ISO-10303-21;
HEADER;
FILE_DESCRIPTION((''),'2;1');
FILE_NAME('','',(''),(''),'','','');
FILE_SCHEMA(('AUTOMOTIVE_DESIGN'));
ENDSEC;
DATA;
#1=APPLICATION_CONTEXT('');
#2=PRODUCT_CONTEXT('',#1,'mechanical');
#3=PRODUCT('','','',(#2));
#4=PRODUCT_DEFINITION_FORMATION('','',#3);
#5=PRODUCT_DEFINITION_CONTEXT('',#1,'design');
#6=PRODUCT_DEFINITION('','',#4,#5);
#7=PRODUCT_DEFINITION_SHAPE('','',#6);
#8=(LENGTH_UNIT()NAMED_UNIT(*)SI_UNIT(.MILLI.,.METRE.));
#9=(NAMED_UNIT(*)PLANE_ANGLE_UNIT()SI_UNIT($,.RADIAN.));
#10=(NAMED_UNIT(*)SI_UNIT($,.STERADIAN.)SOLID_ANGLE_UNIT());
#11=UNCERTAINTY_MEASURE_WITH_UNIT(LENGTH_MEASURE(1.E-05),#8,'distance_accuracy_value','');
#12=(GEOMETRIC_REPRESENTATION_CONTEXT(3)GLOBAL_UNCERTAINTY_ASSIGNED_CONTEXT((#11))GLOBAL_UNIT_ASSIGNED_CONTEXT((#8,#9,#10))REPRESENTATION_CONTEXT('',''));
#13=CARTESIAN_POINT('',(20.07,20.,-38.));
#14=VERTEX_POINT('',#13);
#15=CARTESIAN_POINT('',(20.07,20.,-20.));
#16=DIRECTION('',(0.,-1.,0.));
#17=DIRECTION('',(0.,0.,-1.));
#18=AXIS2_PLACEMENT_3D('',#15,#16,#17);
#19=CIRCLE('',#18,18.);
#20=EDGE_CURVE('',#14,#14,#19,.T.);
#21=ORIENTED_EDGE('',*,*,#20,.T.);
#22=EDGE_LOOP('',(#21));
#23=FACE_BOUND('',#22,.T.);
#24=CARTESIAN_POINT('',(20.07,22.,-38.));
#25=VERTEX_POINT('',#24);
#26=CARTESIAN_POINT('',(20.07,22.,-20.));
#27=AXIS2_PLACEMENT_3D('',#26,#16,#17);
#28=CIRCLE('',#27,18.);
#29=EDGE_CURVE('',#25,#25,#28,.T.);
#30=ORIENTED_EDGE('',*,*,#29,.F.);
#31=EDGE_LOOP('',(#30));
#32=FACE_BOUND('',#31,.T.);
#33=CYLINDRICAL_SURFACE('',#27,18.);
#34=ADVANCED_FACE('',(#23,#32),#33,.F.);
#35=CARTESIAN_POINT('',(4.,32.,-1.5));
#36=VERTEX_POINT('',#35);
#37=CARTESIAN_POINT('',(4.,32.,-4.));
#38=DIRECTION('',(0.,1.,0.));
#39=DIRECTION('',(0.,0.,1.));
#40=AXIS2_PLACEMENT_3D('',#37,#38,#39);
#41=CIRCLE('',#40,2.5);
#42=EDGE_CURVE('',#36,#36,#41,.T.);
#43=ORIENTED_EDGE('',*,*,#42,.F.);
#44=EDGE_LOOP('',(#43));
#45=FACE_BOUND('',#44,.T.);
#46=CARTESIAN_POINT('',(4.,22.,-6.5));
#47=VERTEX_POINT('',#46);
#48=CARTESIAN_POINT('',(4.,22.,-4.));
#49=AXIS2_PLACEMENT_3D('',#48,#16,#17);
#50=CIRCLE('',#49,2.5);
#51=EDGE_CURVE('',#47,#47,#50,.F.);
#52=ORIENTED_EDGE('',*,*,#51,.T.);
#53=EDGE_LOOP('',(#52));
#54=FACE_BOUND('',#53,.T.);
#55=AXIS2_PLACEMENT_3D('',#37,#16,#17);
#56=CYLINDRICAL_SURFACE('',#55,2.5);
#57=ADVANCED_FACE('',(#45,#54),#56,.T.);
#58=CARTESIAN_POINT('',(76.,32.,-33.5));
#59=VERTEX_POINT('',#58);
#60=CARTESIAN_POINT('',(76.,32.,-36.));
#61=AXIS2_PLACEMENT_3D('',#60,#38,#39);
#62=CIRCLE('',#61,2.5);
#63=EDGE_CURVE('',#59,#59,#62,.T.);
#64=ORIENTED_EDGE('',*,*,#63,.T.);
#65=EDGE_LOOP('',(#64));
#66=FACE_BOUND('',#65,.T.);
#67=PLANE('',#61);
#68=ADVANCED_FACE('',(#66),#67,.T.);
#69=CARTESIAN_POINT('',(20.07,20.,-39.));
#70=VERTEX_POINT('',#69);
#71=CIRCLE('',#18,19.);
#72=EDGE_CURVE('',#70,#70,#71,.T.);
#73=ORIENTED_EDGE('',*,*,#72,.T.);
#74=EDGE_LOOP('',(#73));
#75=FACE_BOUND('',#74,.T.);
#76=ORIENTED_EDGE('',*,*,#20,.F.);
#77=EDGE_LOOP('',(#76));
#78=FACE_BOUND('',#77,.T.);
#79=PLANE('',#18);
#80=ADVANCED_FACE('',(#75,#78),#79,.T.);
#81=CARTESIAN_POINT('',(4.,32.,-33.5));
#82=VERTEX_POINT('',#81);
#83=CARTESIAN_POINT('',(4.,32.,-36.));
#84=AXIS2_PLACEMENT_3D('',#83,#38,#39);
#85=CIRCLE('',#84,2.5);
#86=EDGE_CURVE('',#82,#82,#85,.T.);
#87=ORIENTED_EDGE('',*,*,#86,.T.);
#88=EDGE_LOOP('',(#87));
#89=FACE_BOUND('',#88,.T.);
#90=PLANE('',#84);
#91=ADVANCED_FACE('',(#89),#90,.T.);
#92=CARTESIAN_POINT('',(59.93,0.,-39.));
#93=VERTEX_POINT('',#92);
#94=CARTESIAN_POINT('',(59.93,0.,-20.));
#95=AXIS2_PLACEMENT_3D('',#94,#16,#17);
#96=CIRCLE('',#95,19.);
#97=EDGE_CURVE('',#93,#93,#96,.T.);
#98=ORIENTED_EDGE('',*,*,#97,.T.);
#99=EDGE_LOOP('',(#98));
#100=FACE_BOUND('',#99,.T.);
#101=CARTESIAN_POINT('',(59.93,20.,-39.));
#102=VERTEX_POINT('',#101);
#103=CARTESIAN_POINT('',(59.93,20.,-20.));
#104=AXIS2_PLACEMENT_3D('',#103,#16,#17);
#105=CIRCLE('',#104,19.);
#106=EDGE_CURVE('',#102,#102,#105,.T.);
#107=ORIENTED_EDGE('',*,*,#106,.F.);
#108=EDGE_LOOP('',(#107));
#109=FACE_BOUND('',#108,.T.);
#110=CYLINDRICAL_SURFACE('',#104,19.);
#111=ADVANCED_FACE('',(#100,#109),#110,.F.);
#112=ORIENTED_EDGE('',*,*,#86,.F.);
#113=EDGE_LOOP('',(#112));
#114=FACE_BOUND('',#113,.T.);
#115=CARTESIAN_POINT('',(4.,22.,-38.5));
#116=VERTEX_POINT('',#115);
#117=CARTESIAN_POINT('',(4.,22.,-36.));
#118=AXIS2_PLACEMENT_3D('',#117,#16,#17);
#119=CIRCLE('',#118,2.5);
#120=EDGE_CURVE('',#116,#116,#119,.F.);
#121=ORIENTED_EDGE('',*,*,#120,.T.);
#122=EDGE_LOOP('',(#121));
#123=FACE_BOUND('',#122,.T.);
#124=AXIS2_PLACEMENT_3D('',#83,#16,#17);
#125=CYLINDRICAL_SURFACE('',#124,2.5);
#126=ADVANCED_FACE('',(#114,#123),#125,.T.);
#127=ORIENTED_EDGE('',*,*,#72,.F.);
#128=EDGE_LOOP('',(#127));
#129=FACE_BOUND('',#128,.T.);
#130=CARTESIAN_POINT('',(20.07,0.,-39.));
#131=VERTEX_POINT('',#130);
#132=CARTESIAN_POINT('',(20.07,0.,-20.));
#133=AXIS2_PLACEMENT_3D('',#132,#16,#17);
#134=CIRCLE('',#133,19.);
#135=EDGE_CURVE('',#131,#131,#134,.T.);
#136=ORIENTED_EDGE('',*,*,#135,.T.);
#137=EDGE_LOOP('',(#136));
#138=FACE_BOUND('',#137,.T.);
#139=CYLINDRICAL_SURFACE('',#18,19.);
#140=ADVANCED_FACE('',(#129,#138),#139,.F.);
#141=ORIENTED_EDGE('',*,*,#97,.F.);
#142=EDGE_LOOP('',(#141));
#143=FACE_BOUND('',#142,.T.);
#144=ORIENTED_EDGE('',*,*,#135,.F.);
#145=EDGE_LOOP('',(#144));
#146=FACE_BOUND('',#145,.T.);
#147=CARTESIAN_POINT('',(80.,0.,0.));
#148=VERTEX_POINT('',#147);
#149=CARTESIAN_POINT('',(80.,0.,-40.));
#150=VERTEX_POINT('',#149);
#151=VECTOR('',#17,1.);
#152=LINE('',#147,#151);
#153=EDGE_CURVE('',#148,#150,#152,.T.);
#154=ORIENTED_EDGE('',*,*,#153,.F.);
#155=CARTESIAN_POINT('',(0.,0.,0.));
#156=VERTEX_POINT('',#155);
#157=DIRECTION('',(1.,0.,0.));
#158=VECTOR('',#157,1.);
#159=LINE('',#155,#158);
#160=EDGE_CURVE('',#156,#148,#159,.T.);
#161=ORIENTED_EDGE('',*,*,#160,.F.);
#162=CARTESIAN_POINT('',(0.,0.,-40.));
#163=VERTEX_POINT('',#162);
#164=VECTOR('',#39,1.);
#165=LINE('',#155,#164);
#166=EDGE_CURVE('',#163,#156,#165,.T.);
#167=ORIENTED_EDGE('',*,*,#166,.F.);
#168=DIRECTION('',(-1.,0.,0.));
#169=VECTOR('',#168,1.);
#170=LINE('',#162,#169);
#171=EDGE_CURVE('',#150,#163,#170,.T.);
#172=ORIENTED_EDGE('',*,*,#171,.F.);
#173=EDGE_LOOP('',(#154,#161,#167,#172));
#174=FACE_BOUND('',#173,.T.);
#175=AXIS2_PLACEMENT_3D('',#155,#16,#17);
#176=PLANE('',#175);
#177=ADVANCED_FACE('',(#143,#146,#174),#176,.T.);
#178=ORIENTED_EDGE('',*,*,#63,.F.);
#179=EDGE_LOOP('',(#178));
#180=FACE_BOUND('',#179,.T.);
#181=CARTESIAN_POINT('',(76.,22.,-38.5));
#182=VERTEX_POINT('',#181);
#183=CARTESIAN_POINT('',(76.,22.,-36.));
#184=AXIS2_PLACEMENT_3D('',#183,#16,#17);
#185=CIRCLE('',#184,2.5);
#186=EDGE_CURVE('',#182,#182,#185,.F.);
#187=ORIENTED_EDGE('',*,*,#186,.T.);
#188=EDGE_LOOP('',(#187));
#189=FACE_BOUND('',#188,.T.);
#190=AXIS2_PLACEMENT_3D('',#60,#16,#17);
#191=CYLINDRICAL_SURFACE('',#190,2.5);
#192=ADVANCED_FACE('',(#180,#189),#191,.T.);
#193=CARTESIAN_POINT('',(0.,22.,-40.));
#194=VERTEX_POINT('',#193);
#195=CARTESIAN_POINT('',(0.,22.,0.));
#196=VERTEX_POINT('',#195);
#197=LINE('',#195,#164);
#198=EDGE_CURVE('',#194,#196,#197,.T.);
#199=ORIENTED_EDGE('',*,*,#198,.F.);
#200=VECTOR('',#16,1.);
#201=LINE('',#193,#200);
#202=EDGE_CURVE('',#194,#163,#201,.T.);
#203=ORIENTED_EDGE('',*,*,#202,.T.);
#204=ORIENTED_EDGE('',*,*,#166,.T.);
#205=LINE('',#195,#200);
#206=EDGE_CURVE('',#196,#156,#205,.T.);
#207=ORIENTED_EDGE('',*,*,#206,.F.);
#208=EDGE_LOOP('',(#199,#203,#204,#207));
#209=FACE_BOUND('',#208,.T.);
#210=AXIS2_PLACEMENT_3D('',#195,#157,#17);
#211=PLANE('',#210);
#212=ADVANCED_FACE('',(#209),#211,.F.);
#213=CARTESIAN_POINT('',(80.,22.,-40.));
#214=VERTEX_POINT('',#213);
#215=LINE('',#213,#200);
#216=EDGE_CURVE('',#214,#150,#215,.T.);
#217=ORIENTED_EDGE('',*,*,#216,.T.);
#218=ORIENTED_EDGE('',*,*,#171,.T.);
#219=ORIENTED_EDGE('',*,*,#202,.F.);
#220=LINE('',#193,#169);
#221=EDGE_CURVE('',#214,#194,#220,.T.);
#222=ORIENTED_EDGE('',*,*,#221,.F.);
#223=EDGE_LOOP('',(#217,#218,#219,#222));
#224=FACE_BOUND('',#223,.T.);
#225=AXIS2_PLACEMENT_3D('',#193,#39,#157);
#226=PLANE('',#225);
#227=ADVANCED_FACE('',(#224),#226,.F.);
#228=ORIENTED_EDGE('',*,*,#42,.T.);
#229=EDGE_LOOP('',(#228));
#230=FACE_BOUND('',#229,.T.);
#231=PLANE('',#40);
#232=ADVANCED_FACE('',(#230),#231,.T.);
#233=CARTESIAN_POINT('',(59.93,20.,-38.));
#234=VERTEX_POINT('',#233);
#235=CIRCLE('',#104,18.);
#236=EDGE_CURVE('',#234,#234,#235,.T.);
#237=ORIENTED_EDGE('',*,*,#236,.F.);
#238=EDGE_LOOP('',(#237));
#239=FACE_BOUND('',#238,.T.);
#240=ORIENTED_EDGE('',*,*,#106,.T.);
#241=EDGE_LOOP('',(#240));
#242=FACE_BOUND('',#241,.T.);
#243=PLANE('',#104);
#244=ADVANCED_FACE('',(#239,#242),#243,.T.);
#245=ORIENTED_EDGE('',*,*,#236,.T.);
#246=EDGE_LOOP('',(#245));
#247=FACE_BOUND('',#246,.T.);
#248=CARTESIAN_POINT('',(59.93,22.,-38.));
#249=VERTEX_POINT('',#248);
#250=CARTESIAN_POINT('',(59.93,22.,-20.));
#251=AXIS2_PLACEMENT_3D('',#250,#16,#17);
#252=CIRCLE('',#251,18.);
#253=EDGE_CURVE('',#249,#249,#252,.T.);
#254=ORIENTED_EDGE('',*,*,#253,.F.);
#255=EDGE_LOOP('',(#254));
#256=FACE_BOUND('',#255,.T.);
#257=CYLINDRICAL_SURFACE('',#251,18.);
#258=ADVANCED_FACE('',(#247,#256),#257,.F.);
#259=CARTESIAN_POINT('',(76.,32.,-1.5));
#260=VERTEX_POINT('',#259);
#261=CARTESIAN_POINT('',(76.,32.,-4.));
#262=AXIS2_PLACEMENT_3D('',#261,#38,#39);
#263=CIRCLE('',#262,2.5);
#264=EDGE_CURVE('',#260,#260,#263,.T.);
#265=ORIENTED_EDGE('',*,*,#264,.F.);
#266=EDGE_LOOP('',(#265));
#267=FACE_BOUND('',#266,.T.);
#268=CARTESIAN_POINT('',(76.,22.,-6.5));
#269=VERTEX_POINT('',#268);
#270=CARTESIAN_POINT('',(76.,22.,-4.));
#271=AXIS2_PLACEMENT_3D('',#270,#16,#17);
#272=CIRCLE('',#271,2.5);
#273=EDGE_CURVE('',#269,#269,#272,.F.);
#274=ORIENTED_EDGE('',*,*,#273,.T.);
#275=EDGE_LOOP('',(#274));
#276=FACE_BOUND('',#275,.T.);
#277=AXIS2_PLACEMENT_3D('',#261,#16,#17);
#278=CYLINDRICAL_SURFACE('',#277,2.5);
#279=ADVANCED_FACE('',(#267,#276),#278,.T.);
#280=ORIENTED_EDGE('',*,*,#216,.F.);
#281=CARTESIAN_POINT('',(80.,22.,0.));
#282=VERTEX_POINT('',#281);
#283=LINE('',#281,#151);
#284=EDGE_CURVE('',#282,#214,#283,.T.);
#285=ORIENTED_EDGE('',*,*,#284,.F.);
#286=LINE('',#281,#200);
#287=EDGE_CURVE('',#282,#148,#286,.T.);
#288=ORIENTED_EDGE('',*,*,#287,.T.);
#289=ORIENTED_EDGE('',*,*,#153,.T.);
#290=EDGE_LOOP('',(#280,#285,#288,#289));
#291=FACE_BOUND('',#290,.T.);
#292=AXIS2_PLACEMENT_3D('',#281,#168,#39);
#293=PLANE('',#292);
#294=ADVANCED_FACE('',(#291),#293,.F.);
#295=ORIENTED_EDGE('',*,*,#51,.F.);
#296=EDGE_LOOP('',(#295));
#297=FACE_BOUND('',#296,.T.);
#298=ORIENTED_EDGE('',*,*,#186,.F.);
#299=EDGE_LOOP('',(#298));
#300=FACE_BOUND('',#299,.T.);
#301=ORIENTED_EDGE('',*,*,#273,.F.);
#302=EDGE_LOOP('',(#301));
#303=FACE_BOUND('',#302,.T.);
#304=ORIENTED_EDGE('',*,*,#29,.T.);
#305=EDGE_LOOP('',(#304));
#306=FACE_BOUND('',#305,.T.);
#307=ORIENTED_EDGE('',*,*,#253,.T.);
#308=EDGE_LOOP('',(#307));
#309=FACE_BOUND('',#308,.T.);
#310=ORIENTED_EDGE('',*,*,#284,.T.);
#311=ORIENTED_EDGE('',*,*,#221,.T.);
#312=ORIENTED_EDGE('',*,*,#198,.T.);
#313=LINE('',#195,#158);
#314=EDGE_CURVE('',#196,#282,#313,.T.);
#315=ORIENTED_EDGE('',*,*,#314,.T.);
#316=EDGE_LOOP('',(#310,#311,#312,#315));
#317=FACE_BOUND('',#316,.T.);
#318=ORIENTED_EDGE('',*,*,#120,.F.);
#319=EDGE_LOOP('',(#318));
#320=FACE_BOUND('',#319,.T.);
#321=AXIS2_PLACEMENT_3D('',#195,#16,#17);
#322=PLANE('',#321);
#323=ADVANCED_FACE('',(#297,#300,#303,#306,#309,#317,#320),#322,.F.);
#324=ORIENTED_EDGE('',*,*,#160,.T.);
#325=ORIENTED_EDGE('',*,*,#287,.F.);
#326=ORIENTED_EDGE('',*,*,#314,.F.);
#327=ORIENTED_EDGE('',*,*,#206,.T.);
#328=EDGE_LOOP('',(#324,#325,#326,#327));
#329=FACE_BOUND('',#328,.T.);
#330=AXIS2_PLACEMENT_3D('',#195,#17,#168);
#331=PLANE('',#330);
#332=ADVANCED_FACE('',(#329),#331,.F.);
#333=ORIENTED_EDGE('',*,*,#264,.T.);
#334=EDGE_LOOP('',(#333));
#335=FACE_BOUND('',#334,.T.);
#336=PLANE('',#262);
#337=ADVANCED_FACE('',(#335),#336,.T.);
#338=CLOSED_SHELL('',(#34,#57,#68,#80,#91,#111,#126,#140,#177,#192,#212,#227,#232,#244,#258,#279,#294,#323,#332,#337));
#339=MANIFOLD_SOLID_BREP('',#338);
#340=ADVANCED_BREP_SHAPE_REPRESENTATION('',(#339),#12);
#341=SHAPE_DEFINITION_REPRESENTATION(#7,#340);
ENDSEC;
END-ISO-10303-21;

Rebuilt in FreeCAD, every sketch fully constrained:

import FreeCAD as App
import Part
import Sketcher

V = App.Vector
Q = App.Units.Quantity

doc = App.newDocument("Part")
body = doc.addObject("PartDesign::Body", "Body")

# Sketch on XZ plane
sketch1 = body.newObject("Sketcher::SketchObject", "Sketch")
sketch1.AttachmentSupport = (doc.getObject("XZ_Plane"), [""])
sketch1.MapMode = "FlatFace"
sketch1.addGeometry([
    Part.LineSegment(V(0, -40, 0), V(0, 0, 0)),
    Part.LineSegment(V(0, 0, 0), V(80, 0, 0)),
    Part.LineSegment(V(80, 0, 0), V(80, -40, 0)),
    Part.LineSegment(V(80, -40, 0), V(0, -40, 0)),
], False)
sketch1.addConstraint([
    Sketcher.Constraint("Coincident", 0, 2, 1, 1),
    Sketcher.Constraint("Coincident", 1, 2, 2, 1),
    Sketcher.Constraint("Coincident", 2, 2, 3, 1),
    Sketcher.Constraint("Coincident", 3, 2, 0, 1),
    Sketcher.Constraint("Vertical", 0),
    Sketcher.Constraint("Horizontal", 1),
    Sketcher.Constraint("Vertical", 2),
    Sketcher.Constraint("Horizontal", 3),
    Sketcher.Constraint("Coincident", 0, 2, -1, 1),
    Sketcher.Constraint("DistanceX", 1, 1, 1, 2, Q("80 mm")),
    Sketcher.Constraint("DistanceY", 0, 1, 0, 2, Q("40 mm")),
])
pad1 = body.newObject("PartDesign::Pad", "Pad")
pad1.Profile = sketch1
pad1.Length = 22
pad1.Reversed = True

# Sketch on XZ plane
sketch2 = body.newObject("Sketcher::SketchObject", "Sketch001")
sketch2.AttachmentSupport = (doc.getObject("XZ_Plane"), [""])
sketch2.MapMode = "FlatFace"
sketch2.addGeometry([
    Part.Circle(V(20.07, -20, 0), V(0, 0, 1), 19),
    Part.Circle(V(59.93, -20, 0), V(0, 0, 1), 19),
], False)
sketch2.addConstraint([
    Sketcher.Constraint("Equal", 0, 1),
    Sketcher.Constraint("Horizontal", 0, 3, 1, 3),
    Sketcher.Constraint("Diameter", 0, Q("38 mm")),
    Sketcher.Constraint("DistanceY", 0, 3, -1, 1, Q("20 mm")),
    Sketcher.Constraint("DistanceX", -1, 1, 0, 3, Q("20.07 mm")),
    Sketcher.Constraint("DistanceX", -1, 1, 1, 3, Q("59.93 mm")),
])
pocket1 = body.newObject("PartDesign::Pocket", "Pocket")
pocket1.Profile = sketch2
pocket1.Length = 20

# Sketch on XZ plane
sketch3 = body.newObject("Sketcher::SketchObject", "Sketch002")
sketch3.AttachmentSupport = (doc.getObject("XZ_Plane"), [""])
sketch3.MapMode = "FlatFace"
sketch3.AttachmentOffset = App.Placement(V(0, 0, -20), App.Rotation())
sketch3.addGeometry([
    Part.Circle(V(20.07, -20, 0), V(0, 0, 1), 18),
    Part.Circle(V(59.93, -20, 0), V(0, 0, 1), 18),
], False)
sketch3.addConstraint([
    Sketcher.Constraint("Equal", 0, 1),
    Sketcher.Constraint("Horizontal", 0, 3, 1, 3),
    Sketcher.Constraint("Diameter", 0, Q("36 mm")),
    Sketcher.Constraint("DistanceY", 0, 3, -1, 1, Q("20 mm")),
    Sketcher.Constraint("DistanceX", -1, 1, 0, 3, Q("20.07 mm")),
    Sketcher.Constraint("DistanceX", -1, 1, 1, 3, Q("59.93 mm")),
])
pocket2 = body.newObject("PartDesign::Pocket", "Pocket001")
pocket2.Profile = sketch3
pocket2.Type = "ThroughAll"

# Sketch on XZ plane
sketch4 = body.newObject("Sketcher::SketchObject", "Sketch003")
sketch4.AttachmentSupport = (doc.getObject("XZ_Plane"), [""])
sketch4.MapMode = "FlatFace"
sketch4.AttachmentOffset = App.Placement(V(0, 0, -22), App.Rotation())
sketch4.addGeometry([
    Part.Circle(V(4, -36, 0), V(0, 0, 1), 2.5),
    Part.Circle(V(76, -36, 0), V(0, 0, 1), 2.5),
    Part.Circle(V(76, -4, 0), V(0, 0, 1), 2.5),
    Part.Circle(V(4, -4, 0), V(0, 0, 1), 2.5),
], False)
sketch4.addConstraint([
    Sketcher.Constraint("Equal", 0, 1),
    Sketcher.Constraint("Equal", 1, 2),
    Sketcher.Constraint("Equal", 2, 3),
    Sketcher.Constraint("Horizontal", 0, 3, 1, 3),
    Sketcher.Constraint("Horizontal", 2, 3, 3, 3),
    Sketcher.Constraint("Vertical", 1, 3, 2, 3),
    Sketcher.Constraint("Vertical", 0, 3, 3, 3),
    Sketcher.Constraint("Diameter", 0, Q("5 mm")),
    Sketcher.Constraint("DistanceX", -1, 1, 0, 3, Q("4 mm")),
    Sketcher.Constraint("DistanceY", 0, 3, -1, 1, Q("36 mm")),
    Sketcher.Constraint("DistanceX", -1, 1, 1, 3, Q("76 mm")),
    Sketcher.Constraint("DistanceY", 2, 3, -1, 1, Q("4 mm")),
])
pad2 = body.newObject("PartDesign::Pad", "Pad001")
pad2.Profile = sketch4
pad2.Length = 10
pad2.Reversed = True

doc.recompute()
